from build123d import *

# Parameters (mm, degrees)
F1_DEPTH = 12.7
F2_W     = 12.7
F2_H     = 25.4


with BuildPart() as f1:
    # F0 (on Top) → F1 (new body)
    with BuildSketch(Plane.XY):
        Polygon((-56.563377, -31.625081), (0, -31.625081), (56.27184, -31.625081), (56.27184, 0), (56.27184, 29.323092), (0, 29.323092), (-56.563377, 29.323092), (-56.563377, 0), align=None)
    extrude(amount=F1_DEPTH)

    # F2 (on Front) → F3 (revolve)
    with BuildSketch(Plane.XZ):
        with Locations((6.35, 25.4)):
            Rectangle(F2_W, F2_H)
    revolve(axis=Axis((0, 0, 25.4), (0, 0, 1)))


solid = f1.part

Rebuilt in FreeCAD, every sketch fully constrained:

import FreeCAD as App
import Part
import Sketcher

V = App.Vector
Q = App.Units.Quantity


def add_polygon(sketch, points):
    """Adds a closed chain of lines whose ends are joined by coincident constraints."""
    first, n = sketch.GeometryCount, len(points)
    for a, b in zip(points, points[1:] + points[:1]):
        sketch.addGeometry(Part.LineSegment(App.Vector(*a, 0), App.Vector(*b, 0)), False)
    for i in range(n):
        sketch.addConstraint(Sketcher.Constraint("Coincident", first + i, 2, first + (i + 1) % n, 1))

doc = App.newDocument("Part")
body = doc.addObject("PartDesign::Body", "Body")

sketch1 = body.newObject("Sketcher::SketchObject", "Sketch")
sketch1.AttachmentSupport = (doc.getObject("XY_Plane"), [""])
sketch1.MapMode = "FlatFace"
add_polygon(sketch1, [(-56.563377, -31.625081), (56.27184, -31.625081), (56.27184, 29.323092), (-56.563377, 29.323092)])
sketch1.addConstraint(Sketcher.Constraint("Horizontal", 0))
sketch1.addConstraint(Sketcher.Constraint("Vertical", 1))
sketch1.addConstraint(Sketcher.Constraint("Horizontal", 2))
sketch1.addConstraint(Sketcher.Constraint("Vertical", 3))
sketch1.addConstraint(Sketcher.Constraint("DistanceX", 0, 1, 0, 2, Q("112.835217 mm")))
sketch1.addConstraint(Sketcher.Constraint("DistanceY", 1, 1, 1, 2, Q("60.948173 mm")))
sketch1.addConstraint(Sketcher.Constraint("DistanceX", -1, 1, 0, 2, Q("56.27184 mm")))
sketch1.addConstraint(Sketcher.Constraint("DistanceY", 0, 2, -1, 1, Q("31.625081 mm")))
pad1 = body.newObject("PartDesign::Pad", "Pad")
pad1.Profile = sketch1
pad1.Length = Q("0.5 in")

sketch2 = body.newObject("Sketcher::SketchObject", "Sketch001")
sketch2.AttachmentSupport = (doc.getObject("XZ_Plane"), [""])
sketch2.MapMode = "FlatFace"
add_polygon(sketch2, [(0, 38.1), (0, 12.7), (12.7, 12.7), (12.7, 38.1)])
sketch2.addConstraint(Sketcher.Constraint("Vertical", 0))
sketch2.addConstraint(Sketcher.Constraint("Horizontal", 1))
sketch2.addConstraint(Sketcher.Constraint("Vertical", 2))
sketch2.addConstraint(Sketcher.Constraint("Horizontal", 3))
sketch2.addConstraint(Sketcher.Constraint("PointOnObject", 0, 2, -2))
sketch2.addConstraint(Sketcher.Constraint("DistanceY", 0, 2, 0, 1, Q("1 in")))
sketch2.addConstraint(Sketcher.Constraint("DistanceX", 1, 1, 1, 2, Q("0.5 in")))
sketch2.addConstraint(Sketcher.Constraint("DistanceY", -1, 1, 0, 2, Q("0.5 in")))
revolution = body.newObject("PartDesign::Revolution", "Revolution")
revolution.Profile = sketch2
revolution.ReferenceAxis = (sketch2, ["V_Axis"])
revolution.Angle = 360

doc.recompute()
